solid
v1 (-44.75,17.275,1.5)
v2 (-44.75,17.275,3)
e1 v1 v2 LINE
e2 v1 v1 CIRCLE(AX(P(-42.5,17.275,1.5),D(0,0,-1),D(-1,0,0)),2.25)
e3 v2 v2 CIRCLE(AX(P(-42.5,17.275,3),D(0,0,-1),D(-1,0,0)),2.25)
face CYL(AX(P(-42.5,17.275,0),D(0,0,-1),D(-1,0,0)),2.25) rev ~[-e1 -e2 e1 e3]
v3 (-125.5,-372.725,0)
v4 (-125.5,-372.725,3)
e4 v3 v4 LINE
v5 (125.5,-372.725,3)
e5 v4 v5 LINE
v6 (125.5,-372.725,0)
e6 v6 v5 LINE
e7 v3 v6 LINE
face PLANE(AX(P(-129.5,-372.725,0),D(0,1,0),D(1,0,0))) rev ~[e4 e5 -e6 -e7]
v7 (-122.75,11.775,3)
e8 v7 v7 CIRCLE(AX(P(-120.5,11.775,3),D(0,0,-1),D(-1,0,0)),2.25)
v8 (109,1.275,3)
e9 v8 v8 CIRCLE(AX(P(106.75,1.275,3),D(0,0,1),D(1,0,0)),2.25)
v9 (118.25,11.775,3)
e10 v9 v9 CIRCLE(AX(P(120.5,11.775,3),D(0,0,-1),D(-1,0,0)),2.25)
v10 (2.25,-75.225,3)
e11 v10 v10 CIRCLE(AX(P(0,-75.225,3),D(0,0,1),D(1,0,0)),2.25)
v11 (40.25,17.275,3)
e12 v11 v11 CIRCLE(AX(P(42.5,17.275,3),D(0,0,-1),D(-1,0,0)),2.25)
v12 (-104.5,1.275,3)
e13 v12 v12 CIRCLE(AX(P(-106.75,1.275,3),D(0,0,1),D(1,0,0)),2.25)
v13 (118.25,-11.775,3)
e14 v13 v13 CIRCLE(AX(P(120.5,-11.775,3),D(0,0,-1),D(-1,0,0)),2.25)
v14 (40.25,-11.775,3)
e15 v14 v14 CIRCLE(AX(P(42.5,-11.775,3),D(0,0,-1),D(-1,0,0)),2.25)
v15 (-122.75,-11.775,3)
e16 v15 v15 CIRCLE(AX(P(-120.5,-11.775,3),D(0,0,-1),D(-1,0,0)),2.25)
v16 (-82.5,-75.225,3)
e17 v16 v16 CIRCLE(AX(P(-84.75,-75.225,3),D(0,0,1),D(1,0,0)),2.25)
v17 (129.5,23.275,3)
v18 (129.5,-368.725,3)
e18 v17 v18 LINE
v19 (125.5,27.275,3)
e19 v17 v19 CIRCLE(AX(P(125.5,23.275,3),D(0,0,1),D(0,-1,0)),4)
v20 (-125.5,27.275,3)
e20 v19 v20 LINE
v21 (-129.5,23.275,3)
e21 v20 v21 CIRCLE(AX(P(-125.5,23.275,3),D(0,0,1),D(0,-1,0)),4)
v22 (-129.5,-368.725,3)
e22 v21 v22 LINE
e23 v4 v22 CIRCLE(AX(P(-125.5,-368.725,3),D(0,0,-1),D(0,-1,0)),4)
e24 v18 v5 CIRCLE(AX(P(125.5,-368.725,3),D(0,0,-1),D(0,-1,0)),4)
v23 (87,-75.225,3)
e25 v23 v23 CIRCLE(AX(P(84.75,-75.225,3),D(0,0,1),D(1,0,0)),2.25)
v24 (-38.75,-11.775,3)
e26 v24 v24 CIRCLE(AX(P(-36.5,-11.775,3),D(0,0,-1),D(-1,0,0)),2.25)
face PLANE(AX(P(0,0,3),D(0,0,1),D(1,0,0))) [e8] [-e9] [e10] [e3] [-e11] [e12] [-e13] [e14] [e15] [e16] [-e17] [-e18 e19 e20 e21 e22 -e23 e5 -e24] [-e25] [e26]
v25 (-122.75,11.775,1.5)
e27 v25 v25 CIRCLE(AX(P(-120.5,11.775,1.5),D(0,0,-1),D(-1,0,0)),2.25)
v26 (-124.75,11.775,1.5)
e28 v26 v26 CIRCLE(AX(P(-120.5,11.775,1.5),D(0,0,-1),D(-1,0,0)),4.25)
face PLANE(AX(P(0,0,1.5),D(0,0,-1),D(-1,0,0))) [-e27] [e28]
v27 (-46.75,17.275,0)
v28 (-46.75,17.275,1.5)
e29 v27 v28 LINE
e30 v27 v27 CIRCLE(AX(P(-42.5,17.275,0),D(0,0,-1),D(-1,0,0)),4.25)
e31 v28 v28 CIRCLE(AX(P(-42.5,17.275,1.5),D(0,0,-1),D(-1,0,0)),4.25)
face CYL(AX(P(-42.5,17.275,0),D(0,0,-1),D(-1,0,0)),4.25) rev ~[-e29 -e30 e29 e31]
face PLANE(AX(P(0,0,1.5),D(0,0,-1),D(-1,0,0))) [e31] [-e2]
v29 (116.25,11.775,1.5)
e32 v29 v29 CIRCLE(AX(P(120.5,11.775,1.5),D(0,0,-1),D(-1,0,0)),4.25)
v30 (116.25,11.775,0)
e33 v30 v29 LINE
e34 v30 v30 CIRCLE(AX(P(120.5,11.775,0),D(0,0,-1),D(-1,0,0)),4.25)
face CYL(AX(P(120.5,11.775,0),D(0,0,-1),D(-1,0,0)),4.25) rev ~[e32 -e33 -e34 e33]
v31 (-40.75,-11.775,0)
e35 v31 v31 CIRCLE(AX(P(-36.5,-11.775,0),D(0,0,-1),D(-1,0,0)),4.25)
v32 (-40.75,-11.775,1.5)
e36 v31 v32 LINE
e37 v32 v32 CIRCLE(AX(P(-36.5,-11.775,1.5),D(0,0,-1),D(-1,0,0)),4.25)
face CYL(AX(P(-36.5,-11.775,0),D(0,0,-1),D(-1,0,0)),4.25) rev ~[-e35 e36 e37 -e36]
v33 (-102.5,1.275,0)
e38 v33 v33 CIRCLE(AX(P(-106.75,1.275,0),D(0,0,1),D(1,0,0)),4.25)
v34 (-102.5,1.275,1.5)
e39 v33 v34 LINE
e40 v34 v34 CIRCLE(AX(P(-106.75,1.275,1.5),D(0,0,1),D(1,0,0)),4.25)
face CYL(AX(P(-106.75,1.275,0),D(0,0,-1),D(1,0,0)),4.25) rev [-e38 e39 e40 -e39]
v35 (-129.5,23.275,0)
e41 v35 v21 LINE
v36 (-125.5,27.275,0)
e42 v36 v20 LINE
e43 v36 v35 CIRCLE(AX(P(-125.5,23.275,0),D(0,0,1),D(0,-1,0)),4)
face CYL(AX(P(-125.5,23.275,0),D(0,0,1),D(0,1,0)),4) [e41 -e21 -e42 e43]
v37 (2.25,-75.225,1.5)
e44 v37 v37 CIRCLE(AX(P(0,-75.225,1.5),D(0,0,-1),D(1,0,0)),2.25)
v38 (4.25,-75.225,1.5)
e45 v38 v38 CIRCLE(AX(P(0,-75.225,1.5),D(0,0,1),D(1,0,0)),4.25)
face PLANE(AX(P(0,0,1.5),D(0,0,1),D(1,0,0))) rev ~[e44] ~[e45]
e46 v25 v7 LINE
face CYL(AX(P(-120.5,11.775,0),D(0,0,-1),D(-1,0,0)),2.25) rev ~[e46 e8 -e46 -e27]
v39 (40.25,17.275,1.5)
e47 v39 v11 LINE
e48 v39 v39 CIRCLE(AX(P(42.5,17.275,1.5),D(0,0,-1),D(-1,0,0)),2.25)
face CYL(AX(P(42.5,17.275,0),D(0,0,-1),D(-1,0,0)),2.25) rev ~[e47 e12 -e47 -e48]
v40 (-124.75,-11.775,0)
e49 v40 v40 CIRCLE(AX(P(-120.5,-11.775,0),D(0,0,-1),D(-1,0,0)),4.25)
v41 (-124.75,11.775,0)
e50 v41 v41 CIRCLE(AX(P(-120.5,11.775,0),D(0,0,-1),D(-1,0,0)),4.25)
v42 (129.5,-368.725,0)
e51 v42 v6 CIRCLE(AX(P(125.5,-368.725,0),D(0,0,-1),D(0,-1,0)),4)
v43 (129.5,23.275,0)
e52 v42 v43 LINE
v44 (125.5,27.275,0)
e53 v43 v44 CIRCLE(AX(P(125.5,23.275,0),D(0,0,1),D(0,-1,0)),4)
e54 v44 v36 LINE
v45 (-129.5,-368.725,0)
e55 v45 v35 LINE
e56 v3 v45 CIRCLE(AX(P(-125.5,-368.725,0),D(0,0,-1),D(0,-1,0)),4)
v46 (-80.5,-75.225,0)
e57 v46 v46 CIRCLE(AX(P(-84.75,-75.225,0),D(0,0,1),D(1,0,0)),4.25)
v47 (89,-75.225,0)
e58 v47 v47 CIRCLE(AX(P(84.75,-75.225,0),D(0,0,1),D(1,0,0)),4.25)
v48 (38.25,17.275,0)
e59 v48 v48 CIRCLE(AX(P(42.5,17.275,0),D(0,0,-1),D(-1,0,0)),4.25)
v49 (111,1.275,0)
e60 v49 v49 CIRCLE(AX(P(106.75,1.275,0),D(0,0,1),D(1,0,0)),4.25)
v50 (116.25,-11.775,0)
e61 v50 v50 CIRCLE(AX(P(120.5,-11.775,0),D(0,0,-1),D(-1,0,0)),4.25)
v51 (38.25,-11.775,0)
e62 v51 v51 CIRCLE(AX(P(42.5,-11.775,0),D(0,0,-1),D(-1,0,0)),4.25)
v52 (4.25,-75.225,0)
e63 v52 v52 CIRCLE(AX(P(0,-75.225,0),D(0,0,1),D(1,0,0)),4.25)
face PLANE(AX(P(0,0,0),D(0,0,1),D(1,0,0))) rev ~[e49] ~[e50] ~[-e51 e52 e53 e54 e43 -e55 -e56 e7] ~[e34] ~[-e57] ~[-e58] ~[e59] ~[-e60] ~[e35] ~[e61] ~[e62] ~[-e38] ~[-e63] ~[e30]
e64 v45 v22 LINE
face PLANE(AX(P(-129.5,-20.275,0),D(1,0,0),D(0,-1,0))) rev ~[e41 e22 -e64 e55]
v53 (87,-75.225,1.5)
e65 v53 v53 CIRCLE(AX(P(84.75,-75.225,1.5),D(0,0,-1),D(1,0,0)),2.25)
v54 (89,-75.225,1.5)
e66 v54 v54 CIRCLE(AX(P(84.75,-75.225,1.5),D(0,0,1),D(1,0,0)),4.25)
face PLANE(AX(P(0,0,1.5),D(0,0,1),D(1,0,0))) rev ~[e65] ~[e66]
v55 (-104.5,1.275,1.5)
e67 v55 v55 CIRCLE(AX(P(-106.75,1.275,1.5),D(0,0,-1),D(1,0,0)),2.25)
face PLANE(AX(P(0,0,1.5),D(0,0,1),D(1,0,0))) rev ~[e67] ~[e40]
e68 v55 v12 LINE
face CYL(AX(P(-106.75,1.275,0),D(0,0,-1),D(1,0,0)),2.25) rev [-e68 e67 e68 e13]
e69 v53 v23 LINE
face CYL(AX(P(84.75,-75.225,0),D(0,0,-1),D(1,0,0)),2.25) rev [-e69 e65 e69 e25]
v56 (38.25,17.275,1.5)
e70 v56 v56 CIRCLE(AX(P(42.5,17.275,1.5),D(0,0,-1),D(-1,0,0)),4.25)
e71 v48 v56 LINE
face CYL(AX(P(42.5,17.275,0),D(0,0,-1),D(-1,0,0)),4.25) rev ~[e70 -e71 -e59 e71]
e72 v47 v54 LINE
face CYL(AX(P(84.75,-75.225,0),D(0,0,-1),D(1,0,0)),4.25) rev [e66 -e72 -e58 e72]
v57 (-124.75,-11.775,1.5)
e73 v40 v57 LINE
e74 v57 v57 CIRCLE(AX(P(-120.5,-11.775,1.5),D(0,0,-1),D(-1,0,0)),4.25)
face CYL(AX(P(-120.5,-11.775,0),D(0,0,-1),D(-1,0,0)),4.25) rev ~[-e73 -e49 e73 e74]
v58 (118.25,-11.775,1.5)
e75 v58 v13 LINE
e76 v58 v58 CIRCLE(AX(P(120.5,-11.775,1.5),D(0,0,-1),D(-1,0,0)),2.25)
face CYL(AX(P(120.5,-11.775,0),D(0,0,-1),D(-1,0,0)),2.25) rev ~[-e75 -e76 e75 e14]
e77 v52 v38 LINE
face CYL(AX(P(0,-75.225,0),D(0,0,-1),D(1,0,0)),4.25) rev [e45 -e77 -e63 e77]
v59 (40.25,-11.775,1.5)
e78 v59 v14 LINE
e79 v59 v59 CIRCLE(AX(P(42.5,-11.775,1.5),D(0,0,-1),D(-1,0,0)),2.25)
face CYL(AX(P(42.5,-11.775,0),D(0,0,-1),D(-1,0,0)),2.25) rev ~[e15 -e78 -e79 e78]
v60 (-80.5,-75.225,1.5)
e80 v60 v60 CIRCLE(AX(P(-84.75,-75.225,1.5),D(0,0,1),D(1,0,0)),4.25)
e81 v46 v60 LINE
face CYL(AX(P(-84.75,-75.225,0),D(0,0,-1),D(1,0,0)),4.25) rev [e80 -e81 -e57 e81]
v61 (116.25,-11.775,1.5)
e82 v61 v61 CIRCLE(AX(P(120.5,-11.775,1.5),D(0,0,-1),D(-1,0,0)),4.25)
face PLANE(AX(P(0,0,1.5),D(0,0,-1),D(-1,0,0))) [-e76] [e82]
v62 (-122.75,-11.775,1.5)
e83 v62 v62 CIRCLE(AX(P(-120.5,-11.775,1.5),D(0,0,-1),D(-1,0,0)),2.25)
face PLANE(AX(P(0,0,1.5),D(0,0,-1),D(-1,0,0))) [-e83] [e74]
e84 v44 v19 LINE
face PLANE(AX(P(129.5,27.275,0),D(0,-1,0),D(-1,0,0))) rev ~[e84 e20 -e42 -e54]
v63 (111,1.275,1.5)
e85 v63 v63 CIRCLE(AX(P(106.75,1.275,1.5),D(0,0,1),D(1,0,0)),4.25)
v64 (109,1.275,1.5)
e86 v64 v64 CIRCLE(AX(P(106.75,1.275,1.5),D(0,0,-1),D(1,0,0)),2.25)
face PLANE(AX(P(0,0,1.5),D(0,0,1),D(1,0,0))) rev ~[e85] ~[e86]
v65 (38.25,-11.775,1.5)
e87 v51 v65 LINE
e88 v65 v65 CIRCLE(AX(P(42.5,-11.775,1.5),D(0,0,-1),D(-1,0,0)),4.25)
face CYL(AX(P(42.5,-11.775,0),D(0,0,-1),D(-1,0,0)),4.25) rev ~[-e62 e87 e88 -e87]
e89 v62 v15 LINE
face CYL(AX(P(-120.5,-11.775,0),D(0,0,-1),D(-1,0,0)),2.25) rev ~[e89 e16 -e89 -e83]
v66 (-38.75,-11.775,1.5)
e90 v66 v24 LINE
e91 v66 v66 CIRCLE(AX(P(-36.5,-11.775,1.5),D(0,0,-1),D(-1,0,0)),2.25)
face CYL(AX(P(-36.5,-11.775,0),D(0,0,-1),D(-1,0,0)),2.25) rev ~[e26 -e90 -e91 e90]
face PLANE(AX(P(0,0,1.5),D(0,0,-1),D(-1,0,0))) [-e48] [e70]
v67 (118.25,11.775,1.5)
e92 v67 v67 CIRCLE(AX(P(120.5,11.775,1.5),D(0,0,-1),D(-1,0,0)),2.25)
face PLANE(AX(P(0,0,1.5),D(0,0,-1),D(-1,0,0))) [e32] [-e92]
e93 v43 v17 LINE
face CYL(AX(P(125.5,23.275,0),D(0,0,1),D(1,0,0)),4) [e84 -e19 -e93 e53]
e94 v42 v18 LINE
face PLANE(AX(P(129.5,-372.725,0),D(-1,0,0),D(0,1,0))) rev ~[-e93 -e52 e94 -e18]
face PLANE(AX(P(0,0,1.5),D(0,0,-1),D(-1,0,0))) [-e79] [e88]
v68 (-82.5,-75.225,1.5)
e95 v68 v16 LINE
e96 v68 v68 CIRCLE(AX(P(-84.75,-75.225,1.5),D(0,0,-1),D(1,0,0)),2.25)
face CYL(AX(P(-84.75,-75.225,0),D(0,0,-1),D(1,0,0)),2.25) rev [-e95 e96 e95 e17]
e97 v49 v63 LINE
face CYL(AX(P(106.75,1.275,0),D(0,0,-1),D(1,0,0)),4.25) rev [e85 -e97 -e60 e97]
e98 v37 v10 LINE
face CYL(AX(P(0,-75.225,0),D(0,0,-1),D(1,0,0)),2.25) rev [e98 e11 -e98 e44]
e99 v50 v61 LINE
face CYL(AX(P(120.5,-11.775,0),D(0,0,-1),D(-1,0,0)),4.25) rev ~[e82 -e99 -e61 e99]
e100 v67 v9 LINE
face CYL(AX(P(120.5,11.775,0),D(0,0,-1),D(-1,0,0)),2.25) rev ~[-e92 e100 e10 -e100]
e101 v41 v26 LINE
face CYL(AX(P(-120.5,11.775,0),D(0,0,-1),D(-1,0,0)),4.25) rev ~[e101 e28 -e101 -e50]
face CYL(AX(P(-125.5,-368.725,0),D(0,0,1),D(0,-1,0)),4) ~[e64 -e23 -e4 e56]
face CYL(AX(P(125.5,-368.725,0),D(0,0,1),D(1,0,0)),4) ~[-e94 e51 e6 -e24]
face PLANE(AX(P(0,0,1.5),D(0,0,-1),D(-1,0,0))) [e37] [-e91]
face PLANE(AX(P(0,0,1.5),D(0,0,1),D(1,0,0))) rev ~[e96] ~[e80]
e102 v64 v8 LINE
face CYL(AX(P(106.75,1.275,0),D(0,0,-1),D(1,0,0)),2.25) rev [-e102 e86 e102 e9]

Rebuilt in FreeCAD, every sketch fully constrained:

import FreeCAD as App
import Part
import Sketcher

V = App.Vector


def edges_at(feature, points):
    """Names of the edges that pass closest to the given points."""
    edges = feature.Shape.Edges
    near = lambda p: min(range(len(edges)), key=lambda i: edges[i].distToShape(Part.Vertex(*p))[0])
    return sorted({f"Edge{near(p) + 1}" for p in points})

doc = App.newDocument("Part")
body = doc.addObject("PartDesign::Body", "Body")

# Sketch on XY plane
sketch1 = body.newObject("Sketcher::SketchObject", "Sketch")
sketch1.AttachmentSupport = (doc.getObject("XY_Plane"), [""])
sketch1.MapMode = "FlatFace"
sketch1.addGeometry([
    Part.LineSegment(V(129.5, -372.725, 0), V(129.5, 27.275, 0)),  # 0
    Part.LineSegment(V(129.5, 27.275, 0), V(-129.5, 27.275, 0)),  # 1
    Part.LineSegment(V(-129.5, 27.275, 0), V(-129.5, -372.725, 0)),  # 2
    Part.LineSegment(V(-129.5, -372.725, 0), V(129.5, -372.725, 0)),  # 3
    Part.Circle(V(-84.75, -75.225, 0), V(0, 0, 1), 2.25),  # 4
    Part.Circle(V(-120.5, -11.775, 0), V(0, 0, 1), 1.6),  # 5
    Part.Circle(V(-106.75, 1.275, 0), V(0, 0, 1), 2.25),  # 6
    Part.Circle(V(-120.5, 11.775, 0), V(0, 0, 1), 1.6),  # 7
    Part.Circle(V(-36.5, -11.775, 0), V(0, 0, 1), 1.6),  # 8
    Part.Circle(V(-42.5, 17.275, 0), V(0, 0, 1), 1.6),  # 9
    Part.Circle(V(0, -75.225, 0), V(0, 0, 1), 2.25),  # 10
    Part.Circle(V(84.75, -75.225, 0), V(0, 0, 1), 2.25),  # 11
    Part.Circle(V(42.5, -11.775, 0), V(0, 0, 1), 1.6),  # 12
    Part.Circle(V(42.5, 17.275, 0), V(0, 0, 1), 1.6),  # 13
    Part.Circle(V(106.75, 1.275, 0), V(0, 0, 1), 2.25),  # 14
    Part.Circle(V(120.5, -11.775, 0), V(0, 0, 1), 1.6),  # 15
    Part.Circle(V(120.5, 11.775, 0), V(0, 0, 1), 1.6),  # 16
], False)
sketch1.addConstraint([
    Sketcher.Constraint("Coincident", 0, 2, 1, 1),
    Sketcher.Constraint("Coincident", 1, 2, 2, 1),
    Sketcher.Constraint("Coincident", 2, 2, 3, 1),
    Sketcher.Constraint("Coincident", 3, 2, 0, 1),
    Sketcher.Constraint("Vertical", 0),
    Sketcher.Constraint("Horizontal", 1),
    Sketcher.Constraint("Vertical", 2),
    Sketcher.Constraint("Horizontal", 3),
    Sketcher.Constraint("Equal", 4, 6),
    Sketcher.Constraint("Equal", 5, 7),
    Sketcher.Constraint("Equal", 7, 8),
    Sketcher.Constraint("Equal", 8, 9),
    Sketcher.Constraint("Equal", 6, 10),
    Sketcher.Constraint("Equal", 10, 11),
    Sketcher.Constraint("Equal", 9, 12),
    Sketcher.Constraint("Equal", 12, 13),
    Sketcher.Constraint("Equal", 11, 14),
    Sketcher.Constraint("Equal", 13, 15),
    Sketcher.Constraint("Equal", 15, 16),
    Sketcher.Constraint("Symmetric", 7, 3, 15, 3, -1, 1),
    Sketcher.Constraint("Symmetric", 5, 3, 16, 3, -1, 1),
    Sketcher.Constraint("Symmetric", 4, 3, 11, 3, -2),
    Sketcher.Constraint("Symmetric", 9, 3, 13, 3, -2),
    Sketcher.Constraint("Symmetric", 6, 3, 14, 3, -2),
    Sketcher.Constraint("Symmetric", 5, 3, 15, 3, -2),
    Sketcher.Constraint("PointOnObject", 10, 3, -2),
    Sketcher.Constraint("Horizontal", 5, 3, 8, 3),
    Sketcher.Constraint("Horizontal", 4, 3, 10, 3),
    Sketcher.Constraint("Horizontal", 8, 3, 12, 3),
    Sketcher.Constraint("Vertical", 12, 3, 13, 3),
    Sketcher.Constraint("Diameter", 4, 4.5),
    Sketcher.Constraint("Diameter", 5, 3.2),
    Sketcher.Constraint("DistanceY", 0, 1, 0, 2, 400.0),
    Sketcher.Constraint("DistanceX", 5, 3, 8, 3, 84.0),
    Sketcher.Constraint("DistanceX", 7, 3, 9, 3, 78.0),
    Sketcher.Constraint("DistanceX", 8, 3, 12, 3, 79.0),
    Sketcher.Constraint("DistanceX", 16, 3, 0, 2, 9.0),
    Sketcher.Constraint("DistanceX", 1, 2, 7, 3, 9.0),
    Sketcher.Constraint("DistanceY", 6, 3, 7, 3, 10.5),
    Sketcher.Constraint("DistanceY", 7, 3, 9, 3, 5.5),
    Sketcher.Constraint("DistanceX", 4, 3, 11, 3, 169.5),
    Sketcher.Constraint("DistanceY", 5, 3, 7, 3, 23.55),
    Sketcher.Constraint("DistanceX", 6, 3, 4, 3, 22.0),
    Sketcher.Constraint("DistanceY", 4, 3, 7, 3, 87.0),
    Sketcher.Constraint("DistanceY", 14, 3, 0, 2, 26.0),
])
pad1 = body.newObject("PartDesign::Pad", "Pad")
pad1.Profile = sketch1
pad1.Length = 3

# Sketch on XY plane
sketch2 = body.newObject("Sketcher::SketchObject", "Sketch001")
sketch2.AttachmentSupport = (doc.getObject("XY_Plane"), [""])
sketch2.MapMode = "FlatFace"
sketch2.addGeometry([
    Part.Circle(V(-106.75, 1.275, 0), V(0, 0, 1), 4.25),  # 0
    Part.Circle(V(106.75, 1.275, 0), V(0, 0, 1), 4.25),  # 1
    Part.Circle(V(84.75, -75.225, 0), V(0, 0, 1), 4.25),  # 2
    Part.Circle(V(0, -75.225, 0), V(0, 0, 1), 4.25),  # 3
    Part.Circle(V(-84.75, -75.225, 0), V(0, 0, 1), 4.25),  # 4
], False)
sketch2.addConstraint([
    Sketcher.Constraint("Equal", 0, 1),
    Sketcher.Constraint("Equal", 1, 2),
    Sketcher.Constraint("Equal", 2, 3),
    Sketcher.Constraint("Equal", 3, 4),
    Sketcher.Constraint("Symmetric", 0, 3, 1, 3, -2),
    Sketcher.Constraint("Symmetric", 2, 3, 4, 3, -2),
    Sketcher.Constraint("PointOnObject", 3, 3, -2),
    Sketcher.Constraint("Horizontal", 2, 3, 3, 3),
    Sketcher.Constraint("Diameter", 0, 8.5),
    Sketcher.Constraint("DistanceX", 2, 3, 1, 3, 22.0),
    Sketcher.Constraint("DistanceX", 0, 3, 1, 3, 213.5),
    Sketcher.Constraint("DistanceY", 2, 3, 1, 3, 76.5),
    Sketcher.Constraint("DistanceY", -1, 1, 0, 3, 1.275),
])
pocket1 = body.newObject("PartDesign::Pocket", "Pocket")
pocket1.Profile = sketch2
pocket1.Length = 1.5
pocket1.Reversed = True

# Sketch on XY plane
sketch3 = body.newObject("Sketcher::SketchObject", "Sketch002")
sketch3.AttachmentSupport = (doc.getObject("XY_Plane"), [""])
sketch3.MapMode = "FlatFace"
sketch3.addGeometry([
    Part.Circle(V(120.5, 11.775, 0), V(0, 0, 1), 2.25),  # 0
    Part.Circle(V(120.5, -11.775, 0), V(0, 0, 1), 2.25),  # 1
    Part.Circle(V(42.5, 17.275, 0), V(0, 0, 1), 2.25),  # 2
    Part.Circle(V(42.5, -11.775, 0), V(0, 0, 1), 2.25),  # 3
    Part.Circle(V(-42.5, 17.275, 0), V(0, 0, 1), 2.25),  # 4
    Part.Circle(V(-36.5, -11.775, 0), V(0, 0, 1), 2.25),  # 5
    Part.Circle(V(-120.5, 11.775, 0), V(0, 0, 1), 2.25),  # 6
    Part.Circle(V(-120.5, -11.775, 0), V(0, 0, 1), 2.25),  # 7
], False)
sketch3.addConstraint([
    Sketcher.Constraint("Equal", 0, 1),
    Sketcher.Constraint("Equal", 1, 2),
    Sketcher.Constraint("Equal", 2, 3),
    Sketcher.Constraint("Equal", 3, 4),
    Sketcher.Constraint("Equal", 4, 5),
    Sketcher.Constraint("Equal", 5, 6),
    Sketcher.Constraint("Equal", 6, 7),
    Sketcher.Constraint("Symmetric", 1, 3, 6, 3, -1, 1),
    Sketcher.Constraint("Symmetric", 0, 3, 7, 3, -1, 1),
    Sketcher.Constraint("Symmetric", 2, 3, 4, 3, -2),
    Sketcher.Constraint("Symmetric", 0, 3, 6, 3, -2),
    Sketcher.Constraint("Horizontal", 1, 3, 3, 3),
    Sketcher.Constraint("Horizontal", 3, 3, 5, 3),
    Sketcher.Constraint("Vertical", 2, 3, 3, 3),
    Sketcher.Constraint("Diameter", 0, 4.5),
    Sketcher.Constraint("DistanceX", 2, 3, 0, 3, 78.0),
    Sketcher.Constraint("DistanceX", 4, 3, 2, 3, 85.0),
    Sketcher.Constraint("DistanceX", 4, 3, 5, 3, 6.0),
    Sketcher.Constraint("DistanceY", 0, 3, 2, 3, 5.5),
    Sketcher.Constraint("DistanceY", 1, 3, 0, 3, 23.55),
])
pocket2 = body.newObject("PartDesign::Pocket", "Pocket001")
pocket2.Profile = sketch3
pocket2.Type = "ThroughAll"
pocket2.Reversed = True

# Sketch on XY plane
sketch4 = body.newObject("Sketcher::SketchObject", "Sketch003")
sketch4.AttachmentSupport = (doc.getObject("XY_Plane"), [""])
sketch4.MapMode = "FlatFace"
sketch4.addGeometry([
    Part.Circle(V(120.5, 11.775, 0), V(0, 0, 1), 4.25),  # 0
    Part.Circle(V(120.5, -11.775, 0), V(0, 0, 1), 4.25),  # 1
    Part.Circle(V(42.5, 17.275, 0), V(0, 0, 1), 4.25),  # 2
    Part.Circle(V(42.5, -11.775, 0), V(0, 0, 1), 4.25),  # 3
    Part.Circle(V(-36.5, -11.775, 0), V(0, 0, 1), 4.25),  # 4
    Part.Circle(V(-42.5, 17.275, 0), V(0, 0, 1), 4.25),  # 5
    Part.Circle(V(-120.5, -11.775, 0), V(0, 0, 1), 4.25),  # 6
    Part.Circle(V(-120.5, 11.775, 0), V(0, 0, 1), 4.25),  # 7
], False)
sketch4.addConstraint([
    Sketcher.Constraint("Equal", 0, 1),
    Sketcher.Constraint("Equal", 1, 2),
    Sketcher.Constraint("Equal", 2, 3),
    Sketcher.Constraint("Equal", 3, 4),
    Sketcher.Constraint("Equal", 4, 5),
    Sketcher.Constraint("Equal", 5, 6),
    Sketcher.Constraint("Equal", 6, 7),
    Sketcher.Constraint("Symmetric", 0, 3, 6, 3, -1, 1),
    Sketcher.Constraint("Symmetric", 1, 3, 7, 3, -1, 1),
    Sketcher.Constraint("Symmetric", 2, 3, 5, 3, -2),
    Sketcher.Constraint("Symmetric", 1, 3, 6, 3, -2),
    Sketcher.Constraint("Horizontal", 1, 3, 3, 3),
    Sketcher.Constraint("Horizontal", 3, 3, 4, 3),
    Sketcher.Constraint("Vertical", 2, 3, 3, 3),
    Sketcher.Constraint("Diameter", 0, 8.5),
    Sketcher.Constraint("DistanceX", 2, 3, 0, 3, 78.0),
    Sketcher.Constraint("DistanceX", 4, 3, 3, 3, 79.0),
    Sketcher.Constraint("DistanceX", 5, 3, 4, 3, 6.0),
    Sketcher.Constraint("DistanceY", 0, 3, 2, 3, 5.5),
    Sketcher.Constraint("DistanceY", 1, 3, 0, 3, 23.55),
])
pocket3 = body.newObject("PartDesign::Pocket", "Pocket002")
pocket3.Profile = sketch4
pocket3.Length = 1.5
pocket3.Reversed = True
doc.recompute()

fillet = body.newObject("PartDesign::Fillet", "Fillet")
fillet.Base = (pocket3, edges_at(pocket3, [
    (129.5, -372.725, 1.5),
    (-129.5, -372.725, 1.5),
    (-129.5, 27.275, 1.5),
    (129.5, 27.275, 1.5),
]))
fillet.Radius = 4

doc.recompute()
